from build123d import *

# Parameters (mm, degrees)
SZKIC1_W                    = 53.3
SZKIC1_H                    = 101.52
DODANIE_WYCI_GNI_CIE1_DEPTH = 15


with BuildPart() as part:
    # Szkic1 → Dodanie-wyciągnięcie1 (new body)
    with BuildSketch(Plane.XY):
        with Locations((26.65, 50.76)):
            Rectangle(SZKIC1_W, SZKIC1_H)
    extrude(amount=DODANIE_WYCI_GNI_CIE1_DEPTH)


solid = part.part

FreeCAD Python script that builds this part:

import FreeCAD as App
import Part
import Sketcher

V = App.Vector

doc = App.newDocument("Part")
body = doc.addObject("PartDesign::Body", "Body")

# Sketch on XY plane
sketch1 = body.newObject("Sketcher::SketchObject", "Sketch")
sketch1.AttachmentSupport = (doc.getObject("XY_Plane"), [""])
sketch1.MapMode = "FlatFace"
sketch1.addGeometry(Part.LineSegment(V(0, 101.52, 0), V(0, 0, 0)), False)
sketch1.addGeometry(Part.LineSegment(V(0, 0, 0), V(53.3, 0, 0)), False)
sketch1.addGeometry(Part.LineSegment(V(53.3, 0, 0), V(53.3, 101.52, 0)), False)
sketch1.addGeometry(Part.LineSegment(V(53.3, 101.52, 0), V(0, 101.52, 0)), False)
sketch1.addConstraint(Sketcher.Constraint("Coincident", 0, 2, 1, 1))
sketch1.addConstraint(Sketcher.Constraint("Coincident", 1, 2, 2, 1))
sketch1.addConstraint(Sketcher.Constraint("Coincident", 2, 2, 3, 1))
sketch1.addConstraint(Sketcher.Constraint("Coincident", 3, 2, 0, 1))
sketch1.addConstraint(Sketcher.Constraint("Vertical", 0))
sketch1.addConstraint(Sketcher.Constraint("Horizontal", 1))
sketch1.addConstraint(Sketcher.Constraint("Vertical", 2))
sketch1.addConstraint(Sketcher.Constraint("Horizontal", 3))
sketch1.addConstraint(Sketcher.Constraint("Coincident", 0, 2, -1, 1))
sketch1.addConstraint(Sketcher.Constraint("DistanceX", 1, 1, 1, 2, 53.3))
sketch1.addConstraint(Sketcher.Constraint("DistanceY", 0, 2, 0, 1, 101.52))
pad1 = body.newObject("PartDesign::Pad", "Pad")
pad1.Profile = sketch1
pad1.Length = 15

doc.recompute()
